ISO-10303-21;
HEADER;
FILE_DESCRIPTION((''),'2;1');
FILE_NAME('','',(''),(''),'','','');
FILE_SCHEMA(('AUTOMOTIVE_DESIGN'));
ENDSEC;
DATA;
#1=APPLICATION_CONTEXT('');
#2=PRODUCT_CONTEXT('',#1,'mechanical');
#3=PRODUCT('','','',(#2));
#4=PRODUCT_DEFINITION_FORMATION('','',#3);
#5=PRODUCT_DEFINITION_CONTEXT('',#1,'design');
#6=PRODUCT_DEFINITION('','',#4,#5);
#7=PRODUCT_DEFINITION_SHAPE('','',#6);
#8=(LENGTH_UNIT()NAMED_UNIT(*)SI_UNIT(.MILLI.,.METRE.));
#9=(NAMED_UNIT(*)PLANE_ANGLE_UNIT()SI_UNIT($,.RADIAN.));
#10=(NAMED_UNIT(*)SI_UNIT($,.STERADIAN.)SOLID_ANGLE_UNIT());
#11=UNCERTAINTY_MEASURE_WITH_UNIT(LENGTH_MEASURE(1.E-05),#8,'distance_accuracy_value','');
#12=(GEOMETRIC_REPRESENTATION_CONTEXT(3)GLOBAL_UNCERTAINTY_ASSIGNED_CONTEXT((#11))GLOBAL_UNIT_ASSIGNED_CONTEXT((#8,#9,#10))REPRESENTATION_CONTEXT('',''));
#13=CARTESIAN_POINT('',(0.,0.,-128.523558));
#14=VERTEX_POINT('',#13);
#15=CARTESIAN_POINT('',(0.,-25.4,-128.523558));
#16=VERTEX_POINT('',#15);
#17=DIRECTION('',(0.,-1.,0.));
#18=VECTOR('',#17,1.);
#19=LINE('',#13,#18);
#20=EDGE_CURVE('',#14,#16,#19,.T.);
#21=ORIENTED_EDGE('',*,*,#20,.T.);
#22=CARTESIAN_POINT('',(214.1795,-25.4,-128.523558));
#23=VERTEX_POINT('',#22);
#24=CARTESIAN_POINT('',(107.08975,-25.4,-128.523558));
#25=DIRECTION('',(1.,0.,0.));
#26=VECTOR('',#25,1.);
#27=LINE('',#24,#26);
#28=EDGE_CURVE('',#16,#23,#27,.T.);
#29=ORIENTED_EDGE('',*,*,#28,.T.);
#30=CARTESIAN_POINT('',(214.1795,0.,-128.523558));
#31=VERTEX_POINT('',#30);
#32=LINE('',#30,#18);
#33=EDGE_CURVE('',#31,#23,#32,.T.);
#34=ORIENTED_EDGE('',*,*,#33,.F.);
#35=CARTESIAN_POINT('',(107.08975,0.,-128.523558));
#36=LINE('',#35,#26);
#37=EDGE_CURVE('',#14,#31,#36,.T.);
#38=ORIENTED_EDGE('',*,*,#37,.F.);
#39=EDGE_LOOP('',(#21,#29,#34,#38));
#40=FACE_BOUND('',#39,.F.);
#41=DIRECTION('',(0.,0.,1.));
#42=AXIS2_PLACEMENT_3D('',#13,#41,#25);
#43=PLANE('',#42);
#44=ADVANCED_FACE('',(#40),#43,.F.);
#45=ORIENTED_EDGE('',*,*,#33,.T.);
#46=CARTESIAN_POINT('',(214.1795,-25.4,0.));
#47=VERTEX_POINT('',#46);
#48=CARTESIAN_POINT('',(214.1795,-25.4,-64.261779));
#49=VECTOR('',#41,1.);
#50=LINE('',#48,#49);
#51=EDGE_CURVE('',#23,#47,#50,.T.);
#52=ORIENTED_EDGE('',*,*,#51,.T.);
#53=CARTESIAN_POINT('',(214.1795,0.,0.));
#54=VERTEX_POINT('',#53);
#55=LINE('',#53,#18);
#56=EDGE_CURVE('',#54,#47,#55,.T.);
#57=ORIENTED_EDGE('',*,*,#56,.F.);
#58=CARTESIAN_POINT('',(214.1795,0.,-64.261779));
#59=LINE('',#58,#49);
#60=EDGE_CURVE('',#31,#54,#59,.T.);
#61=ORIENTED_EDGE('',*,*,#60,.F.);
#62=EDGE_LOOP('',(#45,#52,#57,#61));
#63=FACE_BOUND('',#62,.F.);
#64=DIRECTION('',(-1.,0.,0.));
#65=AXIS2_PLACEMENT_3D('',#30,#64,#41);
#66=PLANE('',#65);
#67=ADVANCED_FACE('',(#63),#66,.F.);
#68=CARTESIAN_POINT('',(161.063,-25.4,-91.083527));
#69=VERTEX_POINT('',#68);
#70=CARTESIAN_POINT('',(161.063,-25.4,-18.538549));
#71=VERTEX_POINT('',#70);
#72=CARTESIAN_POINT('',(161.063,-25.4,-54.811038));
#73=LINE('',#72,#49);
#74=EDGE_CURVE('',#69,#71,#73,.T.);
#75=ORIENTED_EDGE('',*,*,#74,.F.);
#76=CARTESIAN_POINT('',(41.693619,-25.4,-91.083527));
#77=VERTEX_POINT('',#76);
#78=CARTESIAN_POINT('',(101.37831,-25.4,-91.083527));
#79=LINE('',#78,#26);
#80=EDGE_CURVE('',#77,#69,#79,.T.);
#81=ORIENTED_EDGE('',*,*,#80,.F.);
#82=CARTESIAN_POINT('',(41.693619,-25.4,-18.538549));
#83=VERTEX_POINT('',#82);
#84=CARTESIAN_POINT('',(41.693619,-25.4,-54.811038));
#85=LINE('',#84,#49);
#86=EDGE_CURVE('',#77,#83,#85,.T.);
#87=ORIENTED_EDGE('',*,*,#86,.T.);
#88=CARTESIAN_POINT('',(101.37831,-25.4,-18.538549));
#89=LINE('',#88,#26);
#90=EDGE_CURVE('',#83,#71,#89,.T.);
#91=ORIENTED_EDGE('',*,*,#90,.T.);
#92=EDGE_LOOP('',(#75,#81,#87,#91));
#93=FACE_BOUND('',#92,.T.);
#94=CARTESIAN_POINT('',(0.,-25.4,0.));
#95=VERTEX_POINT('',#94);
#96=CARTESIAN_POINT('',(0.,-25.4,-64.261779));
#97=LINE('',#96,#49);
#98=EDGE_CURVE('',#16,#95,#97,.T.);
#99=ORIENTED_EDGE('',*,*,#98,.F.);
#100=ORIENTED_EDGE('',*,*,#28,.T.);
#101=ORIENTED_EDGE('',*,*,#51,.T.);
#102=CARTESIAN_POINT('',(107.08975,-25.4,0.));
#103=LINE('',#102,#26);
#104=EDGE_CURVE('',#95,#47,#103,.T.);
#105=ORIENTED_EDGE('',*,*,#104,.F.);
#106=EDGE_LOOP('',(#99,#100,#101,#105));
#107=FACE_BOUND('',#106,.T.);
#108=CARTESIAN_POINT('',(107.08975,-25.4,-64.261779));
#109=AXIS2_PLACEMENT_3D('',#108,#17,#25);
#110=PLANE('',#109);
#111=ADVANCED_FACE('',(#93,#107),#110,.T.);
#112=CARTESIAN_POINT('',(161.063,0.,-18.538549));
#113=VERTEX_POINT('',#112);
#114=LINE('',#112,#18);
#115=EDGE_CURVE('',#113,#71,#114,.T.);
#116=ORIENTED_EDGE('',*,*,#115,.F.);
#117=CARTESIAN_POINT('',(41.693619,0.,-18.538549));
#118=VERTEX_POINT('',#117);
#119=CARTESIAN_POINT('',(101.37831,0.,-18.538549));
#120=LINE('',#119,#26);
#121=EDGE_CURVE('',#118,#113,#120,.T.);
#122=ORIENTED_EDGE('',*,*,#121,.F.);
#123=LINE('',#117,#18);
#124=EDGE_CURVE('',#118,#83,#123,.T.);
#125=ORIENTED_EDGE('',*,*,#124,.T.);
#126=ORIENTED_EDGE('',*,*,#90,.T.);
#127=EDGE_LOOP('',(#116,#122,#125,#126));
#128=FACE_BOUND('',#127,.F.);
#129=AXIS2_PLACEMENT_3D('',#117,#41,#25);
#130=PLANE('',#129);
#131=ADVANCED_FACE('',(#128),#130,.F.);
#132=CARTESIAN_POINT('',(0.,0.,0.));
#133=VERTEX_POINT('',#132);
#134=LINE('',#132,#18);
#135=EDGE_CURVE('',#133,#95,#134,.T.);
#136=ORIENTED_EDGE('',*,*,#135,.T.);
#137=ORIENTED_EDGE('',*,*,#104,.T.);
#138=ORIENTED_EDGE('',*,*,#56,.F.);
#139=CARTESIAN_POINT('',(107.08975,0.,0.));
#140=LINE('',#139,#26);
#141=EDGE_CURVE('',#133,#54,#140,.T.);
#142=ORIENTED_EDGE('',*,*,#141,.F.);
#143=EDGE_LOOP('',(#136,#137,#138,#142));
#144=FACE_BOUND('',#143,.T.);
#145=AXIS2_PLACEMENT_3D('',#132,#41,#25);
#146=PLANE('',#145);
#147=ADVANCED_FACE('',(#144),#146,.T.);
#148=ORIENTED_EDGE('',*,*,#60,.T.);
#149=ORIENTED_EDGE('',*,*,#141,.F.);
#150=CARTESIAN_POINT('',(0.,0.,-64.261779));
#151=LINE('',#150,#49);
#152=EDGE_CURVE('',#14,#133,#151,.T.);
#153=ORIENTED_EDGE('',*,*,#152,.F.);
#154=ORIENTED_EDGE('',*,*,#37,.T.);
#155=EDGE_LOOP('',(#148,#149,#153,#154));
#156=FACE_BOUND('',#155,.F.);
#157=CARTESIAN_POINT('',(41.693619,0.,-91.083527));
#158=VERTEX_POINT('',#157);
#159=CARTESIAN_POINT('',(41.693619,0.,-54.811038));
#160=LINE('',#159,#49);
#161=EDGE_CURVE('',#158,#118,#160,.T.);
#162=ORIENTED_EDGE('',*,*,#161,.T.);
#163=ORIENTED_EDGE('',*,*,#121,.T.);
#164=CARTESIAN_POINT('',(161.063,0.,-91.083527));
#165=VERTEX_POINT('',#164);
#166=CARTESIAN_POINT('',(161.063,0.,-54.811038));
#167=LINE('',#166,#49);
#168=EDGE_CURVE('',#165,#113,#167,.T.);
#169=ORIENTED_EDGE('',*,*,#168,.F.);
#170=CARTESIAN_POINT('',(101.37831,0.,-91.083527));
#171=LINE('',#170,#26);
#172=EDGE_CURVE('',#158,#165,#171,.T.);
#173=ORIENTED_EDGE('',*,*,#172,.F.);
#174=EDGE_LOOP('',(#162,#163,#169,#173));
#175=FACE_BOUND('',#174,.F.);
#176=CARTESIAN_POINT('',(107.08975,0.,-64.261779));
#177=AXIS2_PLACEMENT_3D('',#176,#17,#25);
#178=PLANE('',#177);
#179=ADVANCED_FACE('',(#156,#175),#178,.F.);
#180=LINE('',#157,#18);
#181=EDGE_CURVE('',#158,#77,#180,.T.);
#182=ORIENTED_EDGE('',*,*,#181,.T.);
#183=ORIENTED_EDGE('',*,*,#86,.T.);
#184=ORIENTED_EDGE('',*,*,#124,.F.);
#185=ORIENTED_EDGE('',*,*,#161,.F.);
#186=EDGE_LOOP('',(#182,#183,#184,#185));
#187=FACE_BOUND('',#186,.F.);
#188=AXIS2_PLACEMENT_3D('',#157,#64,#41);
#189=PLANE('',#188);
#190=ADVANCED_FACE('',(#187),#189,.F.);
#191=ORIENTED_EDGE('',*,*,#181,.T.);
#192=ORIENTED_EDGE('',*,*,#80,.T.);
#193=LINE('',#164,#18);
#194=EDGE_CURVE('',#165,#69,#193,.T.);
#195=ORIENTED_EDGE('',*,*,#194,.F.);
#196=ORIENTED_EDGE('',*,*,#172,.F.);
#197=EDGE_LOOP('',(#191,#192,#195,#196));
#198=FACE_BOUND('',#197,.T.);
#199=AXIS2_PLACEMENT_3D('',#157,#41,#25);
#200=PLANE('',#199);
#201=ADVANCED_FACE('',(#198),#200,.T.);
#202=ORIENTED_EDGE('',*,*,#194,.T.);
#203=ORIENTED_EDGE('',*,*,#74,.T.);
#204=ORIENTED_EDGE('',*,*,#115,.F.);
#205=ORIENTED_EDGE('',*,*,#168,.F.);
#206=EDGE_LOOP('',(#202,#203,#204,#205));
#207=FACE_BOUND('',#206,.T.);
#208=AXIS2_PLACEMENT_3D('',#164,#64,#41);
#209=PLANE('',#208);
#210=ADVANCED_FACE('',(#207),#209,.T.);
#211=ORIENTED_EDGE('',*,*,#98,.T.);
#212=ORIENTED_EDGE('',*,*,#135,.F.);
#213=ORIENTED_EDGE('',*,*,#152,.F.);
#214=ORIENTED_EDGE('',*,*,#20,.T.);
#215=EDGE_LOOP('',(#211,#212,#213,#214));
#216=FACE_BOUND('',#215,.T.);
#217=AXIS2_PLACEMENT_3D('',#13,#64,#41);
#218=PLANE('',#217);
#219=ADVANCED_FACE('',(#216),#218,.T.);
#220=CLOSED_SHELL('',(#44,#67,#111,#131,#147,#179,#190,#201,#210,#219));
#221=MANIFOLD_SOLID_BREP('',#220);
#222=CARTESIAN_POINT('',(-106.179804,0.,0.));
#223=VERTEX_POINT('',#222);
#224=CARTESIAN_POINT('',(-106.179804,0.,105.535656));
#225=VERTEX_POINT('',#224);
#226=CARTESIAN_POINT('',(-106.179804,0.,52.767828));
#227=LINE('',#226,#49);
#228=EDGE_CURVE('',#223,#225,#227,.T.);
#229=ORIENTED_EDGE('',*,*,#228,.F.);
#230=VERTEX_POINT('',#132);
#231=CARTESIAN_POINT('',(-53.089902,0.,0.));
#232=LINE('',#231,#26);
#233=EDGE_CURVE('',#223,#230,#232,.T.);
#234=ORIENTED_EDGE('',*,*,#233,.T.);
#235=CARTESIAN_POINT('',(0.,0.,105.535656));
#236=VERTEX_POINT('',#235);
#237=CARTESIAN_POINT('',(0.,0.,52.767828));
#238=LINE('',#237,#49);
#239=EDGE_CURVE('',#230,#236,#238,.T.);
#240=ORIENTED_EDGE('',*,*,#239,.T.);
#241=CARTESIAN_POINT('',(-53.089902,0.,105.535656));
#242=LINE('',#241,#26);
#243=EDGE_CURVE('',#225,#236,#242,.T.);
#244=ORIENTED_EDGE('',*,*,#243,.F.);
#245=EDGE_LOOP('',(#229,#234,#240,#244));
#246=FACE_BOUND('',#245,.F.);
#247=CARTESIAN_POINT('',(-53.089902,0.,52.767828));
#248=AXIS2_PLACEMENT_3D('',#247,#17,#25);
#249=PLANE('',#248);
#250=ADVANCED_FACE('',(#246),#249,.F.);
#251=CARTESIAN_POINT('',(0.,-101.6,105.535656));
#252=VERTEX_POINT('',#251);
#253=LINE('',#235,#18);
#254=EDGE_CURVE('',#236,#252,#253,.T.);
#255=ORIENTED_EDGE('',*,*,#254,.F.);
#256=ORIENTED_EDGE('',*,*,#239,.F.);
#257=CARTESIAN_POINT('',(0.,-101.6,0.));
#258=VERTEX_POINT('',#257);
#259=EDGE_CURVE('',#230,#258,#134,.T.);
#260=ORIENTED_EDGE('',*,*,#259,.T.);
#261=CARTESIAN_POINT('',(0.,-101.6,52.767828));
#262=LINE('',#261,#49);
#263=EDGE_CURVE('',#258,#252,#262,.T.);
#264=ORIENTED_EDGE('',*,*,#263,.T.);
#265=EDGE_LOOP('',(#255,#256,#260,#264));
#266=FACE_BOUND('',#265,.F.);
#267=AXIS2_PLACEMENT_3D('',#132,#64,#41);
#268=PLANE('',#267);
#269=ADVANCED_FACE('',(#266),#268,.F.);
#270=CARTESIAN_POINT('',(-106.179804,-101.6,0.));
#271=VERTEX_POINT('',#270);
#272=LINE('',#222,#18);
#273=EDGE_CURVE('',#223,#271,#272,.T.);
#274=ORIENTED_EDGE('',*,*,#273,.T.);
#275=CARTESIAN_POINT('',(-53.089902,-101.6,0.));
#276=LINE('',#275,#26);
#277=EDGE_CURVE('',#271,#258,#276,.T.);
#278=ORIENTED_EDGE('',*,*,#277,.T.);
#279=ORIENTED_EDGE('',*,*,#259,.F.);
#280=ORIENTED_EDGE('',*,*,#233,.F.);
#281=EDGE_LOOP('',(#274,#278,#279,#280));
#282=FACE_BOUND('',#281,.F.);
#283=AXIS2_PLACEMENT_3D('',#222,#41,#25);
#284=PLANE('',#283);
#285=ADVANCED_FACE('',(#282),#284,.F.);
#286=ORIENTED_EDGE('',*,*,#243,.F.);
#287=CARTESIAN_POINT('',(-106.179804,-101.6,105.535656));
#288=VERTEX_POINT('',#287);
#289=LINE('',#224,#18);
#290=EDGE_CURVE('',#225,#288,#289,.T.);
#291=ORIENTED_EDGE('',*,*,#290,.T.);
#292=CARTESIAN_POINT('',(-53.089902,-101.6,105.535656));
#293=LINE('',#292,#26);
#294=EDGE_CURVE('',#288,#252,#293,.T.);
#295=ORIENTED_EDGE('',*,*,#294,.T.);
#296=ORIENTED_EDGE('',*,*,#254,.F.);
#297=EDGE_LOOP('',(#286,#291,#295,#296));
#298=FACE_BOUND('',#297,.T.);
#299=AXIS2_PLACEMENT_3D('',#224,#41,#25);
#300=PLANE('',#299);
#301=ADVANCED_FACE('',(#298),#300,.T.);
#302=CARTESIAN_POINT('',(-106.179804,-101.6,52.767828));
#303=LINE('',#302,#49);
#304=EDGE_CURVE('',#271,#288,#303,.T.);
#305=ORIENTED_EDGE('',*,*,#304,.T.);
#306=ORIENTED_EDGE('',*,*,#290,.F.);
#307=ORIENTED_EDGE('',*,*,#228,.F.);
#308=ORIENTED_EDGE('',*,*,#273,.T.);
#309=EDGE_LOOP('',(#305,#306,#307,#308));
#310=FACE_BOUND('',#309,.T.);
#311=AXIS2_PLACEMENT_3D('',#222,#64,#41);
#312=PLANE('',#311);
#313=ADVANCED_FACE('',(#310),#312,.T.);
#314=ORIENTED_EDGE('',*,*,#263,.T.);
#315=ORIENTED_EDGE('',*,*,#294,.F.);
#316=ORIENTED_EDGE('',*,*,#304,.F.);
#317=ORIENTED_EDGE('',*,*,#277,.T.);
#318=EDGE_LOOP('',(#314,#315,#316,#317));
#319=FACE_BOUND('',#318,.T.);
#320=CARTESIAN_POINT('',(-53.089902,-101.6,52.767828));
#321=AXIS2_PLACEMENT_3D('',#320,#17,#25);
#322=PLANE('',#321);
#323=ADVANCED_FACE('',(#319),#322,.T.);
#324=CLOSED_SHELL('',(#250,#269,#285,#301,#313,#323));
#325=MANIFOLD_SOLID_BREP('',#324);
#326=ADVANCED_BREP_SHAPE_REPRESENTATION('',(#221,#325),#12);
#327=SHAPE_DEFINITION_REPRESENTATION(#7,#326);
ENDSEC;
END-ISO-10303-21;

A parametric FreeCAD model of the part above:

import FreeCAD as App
import Part
import Sketcher

V = App.Vector

doc = App.newDocument("Part")
params = doc.addObject("Spreadsheet::Sheet", "Params")
for row, (alias, value) in enumerate([
    ("pad1_length", "4 in"),
    ("pad2_length", "1 in"),
], start=1):
    params.set(f"A{row}", alias)
    params.set(f"B{row}", "=" + value)
    params.setAlias(f"B{row}", alias)

body = doc.addObject("PartDesign::Body", "Body")

sketch1 = doc.addObject("Sketcher::SketchObject", "Sketch")
body.addObject(sketch1)
sketch1.AttachmentSupport = (doc.XZ_Plane, [""])
sketch1.MapMode = "FlatFace"
sketch1.addGeometry(Part.LineSegment(V(-106.179804, 105.535656, 0), V(-106.179804, 0, 0)), False)
sketch1.addGeometry(Part.LineSegment(V(-106.179804, 0, 0), V(0, 0, 0)), False)
sketch1.addGeometry(Part.LineSegment(V(0, 0, 0), V(0, 105.535656, 0)), False)
sketch1.addGeometry(Part.LineSegment(V(0, 105.535656, 0), V(-106.179804, 105.535656, 0)), False)
sketch1.addConstraint(Sketcher.Constraint("Coincident", 0, 2, 1, 1))
sketch1.addConstraint(Sketcher.Constraint("Coincident", 1, 2, 2, 1))
sketch1.addConstraint(Sketcher.Constraint("Coincident", 2, 2, 3, 1))
sketch1.addConstraint(Sketcher.Constraint("Coincident", 3, 2, 0, 1))
sketch1.addConstraint(Sketcher.Constraint("Vertical", 0))
sketch1.addConstraint(Sketcher.Constraint("Horizontal", 1))
sketch1.addConstraint(Sketcher.Constraint("Vertical", 2))
sketch1.addConstraint(Sketcher.Constraint("Horizontal", 3))
sketch1.addConstraint(Sketcher.Constraint("Coincident", 1, 2, -1, 1))
sketch1.addConstraint(Sketcher.Constraint("DistanceX", 1, 1, 1, 2, 106.179804))
sketch1.addConstraint(Sketcher.Constraint("DistanceY", 0, 2, 0, 1, 105.535656))
pad1 = doc.addObject("PartDesign::Pad", "Pad")
body.addObject(pad1)
pad1.Profile = sketch1
pad1.setExpression("Length", "Params.pad1_length")
body2 = doc.addObject("PartDesign::Body", "Body001")

sketch2 = doc.addObject("Sketcher::SketchObject", "Sketch001")
body2.addObject(sketch2)
sketch2.AttachmentSupport = (doc.getObject("XZ_Plane001"), [""])
sketch2.MapMode = "FlatFace"
sketch2.addGeometry(Part.LineSegment(V(0, 0, 0), V(0, -128.523558, 0)), False)
sketch2.addGeometry(Part.LineSegment(V(0, -128.523558, 0), V(214.1795, -128.523558, 0)), False)
sketch2.addGeometry(Part.LineSegment(V(214.1795, -128.523558, 0), V(214.1795, 0, 0)), False)
sketch2.addGeometry(Part.LineSegment(V(214.1795, 0, 0), V(0, 0, 0)), False)
sketch2.addGeometry(Part.LineSegment(V(161.063, -91.083527, 0), V(41.693619, -91.083527, 0)), False)
sketch2.addGeometry(Part.LineSegment(V(41.693619, -91.083527, 0), V(41.693619, -18.538549, 0)), False)
sketch2.addGeometry(Part.LineSegment(V(41.693619, -18.538549, 0), V(161.063, -18.538549, 0)), False)
sketch2.addGeometry(Part.LineSegment(V(161.063, -18.538549, 0), V(161.063, -91.083527, 0)), False)
sketch2.addConstraint(Sketcher.Constraint("Coincident", 0, 2, 1, 1))
sketch2.addConstraint(Sketcher.Constraint("Coincident", 1, 2, 2, 1))
sketch2.addConstraint(Sketcher.Constraint("Coincident", 2, 2, 3, 1))
sketch2.addConstraint(Sketcher.Constraint("Coincident", 3, 2, 0, 1))
sketch2.addConstraint(Sketcher.Constraint("Coincident", 4, 2, 5, 1))
sketch2.addConstraint(Sketcher.Constraint("Coincident", 5, 2, 6, 1))
sketch2.addConstraint(Sketcher.Constraint("Coincident", 6, 2, 7, 1))
sketch2.addConstraint(Sketcher.Constraint("Coincident", 7, 2, 4, 1))
sketch2.addConstraint(Sketcher.Constraint("Vertical", 0))
sketch2.addConstraint(Sketcher.Constraint("Horizontal", 1))
sketch2.addConstraint(Sketcher.Constraint("Vertical", 2))
sketch2.addConstraint(Sketcher.Constraint("Horizontal", 3))
sketch2.addConstraint(Sketcher.Constraint("Horizontal", 4))
sketch2.addConstraint(Sketcher.Constraint("Vertical", 5))
sketch2.addConstraint(Sketcher.Constraint("Horizontal", 6))
sketch2.addConstraint(Sketcher.Constraint("Vertical", 7))
sketch2.addConstraint(Sketcher.Constraint("Coincident", 3, 2, -1, 1))
sketch2.addConstraint(Sketcher.Constraint("DistanceX", 1, 1, 1, 2, 214.179501))
sketch2.addConstraint(Sketcher.Constraint("DistanceX", 4, 2, 4, 1, 119.369381))
sketch2.addConstraint(Sketcher.Constraint("DistanceY", 0, 2, 0, 1, 128.523558))
sketch2.addConstraint(Sketcher.Constraint("DistanceX", -1, 1, 6, 2, 161.063))
sketch2.addConstraint(Sketcher.Constraint("DistanceY", 5, 1, 5, 2, 72.544977))
sketch2.addConstraint(Sketcher.Constraint("DistanceY", 5, 2, -1, 1, 18.538549))
pad2 = doc.addObject("PartDesign::Pad", "Pad001")
body2.addObject(pad2)
pad2.Profile = sketch2
pad2.setExpression("Length", "Params.pad2_length")

doc.recompute()
